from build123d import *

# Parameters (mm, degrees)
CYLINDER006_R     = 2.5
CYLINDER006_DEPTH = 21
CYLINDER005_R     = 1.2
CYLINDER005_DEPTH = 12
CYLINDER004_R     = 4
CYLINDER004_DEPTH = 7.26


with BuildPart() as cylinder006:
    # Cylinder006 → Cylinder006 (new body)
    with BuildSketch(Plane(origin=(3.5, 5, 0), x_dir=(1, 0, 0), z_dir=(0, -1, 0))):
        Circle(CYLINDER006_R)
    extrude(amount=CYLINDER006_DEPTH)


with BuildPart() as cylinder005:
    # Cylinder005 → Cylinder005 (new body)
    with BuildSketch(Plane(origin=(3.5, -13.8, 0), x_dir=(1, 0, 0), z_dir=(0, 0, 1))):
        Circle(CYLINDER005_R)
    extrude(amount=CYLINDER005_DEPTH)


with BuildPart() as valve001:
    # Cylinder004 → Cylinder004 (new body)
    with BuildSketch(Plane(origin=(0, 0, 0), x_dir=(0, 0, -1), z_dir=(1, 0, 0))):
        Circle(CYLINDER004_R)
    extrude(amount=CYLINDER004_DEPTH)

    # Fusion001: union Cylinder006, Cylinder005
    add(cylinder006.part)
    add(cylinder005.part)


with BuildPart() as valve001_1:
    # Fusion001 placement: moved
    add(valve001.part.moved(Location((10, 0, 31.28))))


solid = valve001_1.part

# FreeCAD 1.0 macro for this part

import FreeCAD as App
import Part
import Sketcher
from FreeCAD import Vector

doc = App.newDocument("Part")
body = doc.addObject("PartDesign::Body", "Body")

sketch1 = body.newObject("Sketcher::SketchObject", "Sketch")
sketch1.AttachmentSupport = (doc.getObject("XZ_Plane"), [""])
sketch1.MapMode = "FlatFace"
sketch1.AttachmentOffset = App.Placement(Vector(0, 0, -5), App.Rotation())
sketch1.addGeometry(Part.Circle(Vector(3.5, 0, 0), Vector(0, 0, 1), 2.5), False)
sketch1.addConstraint([
    Sketcher.Constraint("PointOnObject", 0, 3, -1),
    Sketcher.Constraint("Diameter", 0, 5.0),
    Sketcher.Constraint("DistanceX", -1, 1, 0, 3, 3.5),
])
pad1 = body.newObject("PartDesign::Pad", "Pad")
pad1.Profile = sketch1
pad1.Length = 21
body2 = doc.addObject("PartDesign::Body", "Body001")

sketch2 = body2.newObject("Sketcher::SketchObject", "Sketch001")
sketch2.AttachmentSupport = (doc.getObject("XY_Plane001"), [""])
sketch2.MapMode = "FlatFace"
sketch2.addGeometry(Part.Circle(Vector(3.5, -13.8, 0), Vector(0, 0, 1), 1.2), False)
sketch2.addConstraint([
    Sketcher.Constraint("Diameter", 0, 2.4),
    Sketcher.Constraint("DistanceX", -1, 1, 0, 3, 3.5),
    Sketcher.Constraint("DistanceY", 0, 3, -1, 1, 13.8),
])
pad2 = body2.newObject("PartDesign::Pad", "Pad001")
pad2.Profile = sketch2
pad2.Length = 12
body3 = doc.addObject("PartDesign::Body", "Body002")

sketch3 = body3.newObject("Sketcher::SketchObject", "Sketch002")
sketch3.AttachmentSupport = (doc.getObject("YZ_Plane002"), [""])
sketch3.MapMode = "FlatFace"
sketch3.addGeometry(Part.Circle(Vector(0, 0, 0), Vector(0, 0, 1), 4), False)
sketch3.addConstraint([
    Sketcher.Constraint("Coincident", 0, 3, -1, 1),
    Sketcher.Constraint("Diameter", 0, 8.0),
])
pad3 = body3.newObject("PartDesign::Pad", "Pad002")
pad3.Profile = sketch3
pad3.Length = 7.26
doc.recompute()

boolean = body3.newObject("PartDesign::Boolean", "Boolean")
boolean.Type = "Fuse"
boolean.addObjects([body])
doc.recompute()

boolean2 = body3.newObject("PartDesign::Boolean", "Boolean001")
boolean2.Type = "Fuse"
boolean2.addObjects([body2])
body4 = doc.addObject("PartDesign::Body", "Body003")
doc.recompute()

body3.Placement = App.Placement(Vector(10, 0, 31.28), App.Rotation(Vector(0, 0, 1), 0))
boolean3 = body4.newObject("PartDesign::Boolean", "Boolean002")
boolean3.Type = "Fuse"
boolean3.addObjects([body3])

doc.recompute()
